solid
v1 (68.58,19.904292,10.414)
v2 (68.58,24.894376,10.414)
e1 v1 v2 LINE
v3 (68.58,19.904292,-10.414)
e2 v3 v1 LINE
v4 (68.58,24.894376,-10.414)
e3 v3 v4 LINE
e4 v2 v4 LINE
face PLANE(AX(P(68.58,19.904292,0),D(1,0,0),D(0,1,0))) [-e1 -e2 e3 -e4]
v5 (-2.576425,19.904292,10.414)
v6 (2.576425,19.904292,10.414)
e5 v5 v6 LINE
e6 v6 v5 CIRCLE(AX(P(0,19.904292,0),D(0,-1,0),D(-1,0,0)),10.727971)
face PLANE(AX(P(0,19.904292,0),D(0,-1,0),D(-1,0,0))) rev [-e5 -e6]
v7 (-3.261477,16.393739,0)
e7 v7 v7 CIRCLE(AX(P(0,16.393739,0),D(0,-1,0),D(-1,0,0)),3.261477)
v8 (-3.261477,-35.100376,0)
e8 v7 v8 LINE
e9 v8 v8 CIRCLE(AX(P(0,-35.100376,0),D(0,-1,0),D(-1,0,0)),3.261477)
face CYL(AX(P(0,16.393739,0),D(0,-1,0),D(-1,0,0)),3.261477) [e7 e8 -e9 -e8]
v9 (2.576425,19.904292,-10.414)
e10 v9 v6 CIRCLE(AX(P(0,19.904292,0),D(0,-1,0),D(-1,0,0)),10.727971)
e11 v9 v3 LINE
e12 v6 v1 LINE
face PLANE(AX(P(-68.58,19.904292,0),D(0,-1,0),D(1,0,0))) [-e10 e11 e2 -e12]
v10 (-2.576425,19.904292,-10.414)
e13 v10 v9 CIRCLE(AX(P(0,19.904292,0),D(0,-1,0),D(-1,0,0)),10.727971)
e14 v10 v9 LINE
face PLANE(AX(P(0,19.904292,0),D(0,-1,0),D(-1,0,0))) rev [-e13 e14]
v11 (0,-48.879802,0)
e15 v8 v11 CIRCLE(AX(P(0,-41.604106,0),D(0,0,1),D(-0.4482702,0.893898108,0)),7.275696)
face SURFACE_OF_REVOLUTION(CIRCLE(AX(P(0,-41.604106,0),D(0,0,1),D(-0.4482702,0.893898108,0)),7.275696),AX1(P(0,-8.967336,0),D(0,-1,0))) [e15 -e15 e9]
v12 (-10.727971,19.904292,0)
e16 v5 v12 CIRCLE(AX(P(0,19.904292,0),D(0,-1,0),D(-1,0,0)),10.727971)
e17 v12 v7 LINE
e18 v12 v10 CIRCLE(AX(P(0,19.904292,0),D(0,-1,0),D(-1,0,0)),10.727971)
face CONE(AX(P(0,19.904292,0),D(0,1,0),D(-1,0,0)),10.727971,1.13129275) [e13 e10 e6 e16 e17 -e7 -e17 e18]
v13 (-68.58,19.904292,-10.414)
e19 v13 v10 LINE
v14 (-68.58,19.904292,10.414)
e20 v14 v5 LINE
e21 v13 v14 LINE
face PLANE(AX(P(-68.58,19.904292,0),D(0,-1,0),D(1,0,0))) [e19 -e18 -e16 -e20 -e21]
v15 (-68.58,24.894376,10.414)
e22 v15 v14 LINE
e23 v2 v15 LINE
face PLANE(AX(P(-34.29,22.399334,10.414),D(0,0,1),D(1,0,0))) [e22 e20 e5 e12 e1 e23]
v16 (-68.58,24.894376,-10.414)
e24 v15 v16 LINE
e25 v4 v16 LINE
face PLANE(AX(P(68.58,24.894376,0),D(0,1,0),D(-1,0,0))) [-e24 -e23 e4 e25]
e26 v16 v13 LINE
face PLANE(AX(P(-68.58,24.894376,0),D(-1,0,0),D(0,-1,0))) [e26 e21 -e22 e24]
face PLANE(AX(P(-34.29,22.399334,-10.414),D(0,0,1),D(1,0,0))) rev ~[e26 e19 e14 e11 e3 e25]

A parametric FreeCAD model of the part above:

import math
import FreeCAD as App
import Part
import Sketcher

V = App.Vector
Q = App.Units.Quantity

doc = App.newDocument("Part")
params = doc.addObject("Spreadsheet::Sheet", "Params")
for row, (alias, value) in enumerate([
    ("revolution_angle", "360 deg"),
    ("sketch2_width", "5.4 in"),
    ("pad1_length", "0.82 in"),
], start=1):
    params.set(f"A{row}", alias)
    params.set(f"B{row}", "=" + value)
    params.setAlias(f"B{row}", alias)

body = doc.addObject("PartDesign::Body", "Body")

# Sketch on XY plane
sketch1 = doc.addObject("Sketcher::SketchObject", "Sketch")
body.addObject(sketch1)
sketch1.AttachmentSupport = (doc.XY_Plane, [""])
sketch1.MapMode = "FlatFace"
sketch1.addGeometry([
    Part.LineSegment(V(0, 20, 0), V(-11, 20, 0)),  # 0
    Part.LineSegment(V(-11, 20, 0), V(-3, 16, 0)),  # 1
    Part.LineSegment(V(-3, 16, 0), V(-3, -35, 0)),  # 2
    Part.ArcOfCircle(Part.Circle(V(0, -42, 0), V(0, 0, 1), 7), math.radians(117), math.radians(270)),  # 3
    Part.LineSegment(V(0, -49, 0), V(0, 20, 0)),  # 4
], False)
sketch1.addConstraint([
    Sketcher.Constraint("Coincident", 0, 2, 1, 1),
    Sketcher.Constraint("Coincident", 1, 2, 2, 1),
    Sketcher.Constraint("Coincident", 2, 2, 3, 1),
    Sketcher.Constraint("Coincident", 3, 2, 4, 1),
    Sketcher.Constraint("Coincident", 4, 2, 0, 1),
    Sketcher.Constraint("Horizontal", 0),
    Sketcher.Constraint("Vertical", 2),
    Sketcher.Constraint("Vertical", 4),
    Sketcher.Constraint("PointOnObject", 3, 3, -2),
    Sketcher.Constraint("PointOnObject", 3, 2, -2),
    Sketcher.Constraint("Radius", 3, Q("7.275696 mm")),
    Sketcher.Constraint("DistanceX", 0, 2, 0, 1, Q("10.727971 mm")),
    Sketcher.Constraint("DistanceY", 3, 2, -1, 1, Q("48.879802 mm")),
    Sketcher.Constraint("DistanceY", 3, 3, 0, 2, Q("61.508398 mm")),
    Sketcher.Constraint("DistanceY", 2, 2, 2, 1, Q("51.494115 mm")),
    Sketcher.Constraint("DistanceY", -1, 1, 1, 2, Q("16.393739 mm")),
])
revolution = doc.addObject("PartDesign::Revolution", "Revolution")
body.addObject(revolution)
revolution.Profile = sketch1
revolution.ReferenceAxis = (sketch1, ["V_Axis"])
revolution.setExpression("Angle", "Params.revolution_angle")

# Sketch on XY plane
sketch2 = doc.addObject("Sketcher::SketchObject", "Sketch001")
body.addObject(sketch2)
sketch2.AttachmentSupport = (doc.XY_Plane, [""])
sketch2.MapMode = "FlatFace"
sketch2.addGeometry([
    Part.LineSegment(V(-68.6, 24.9, 0), V(-68.6, 19.9, 0)),
    Part.LineSegment(V(-68.6, 19.9, 0), V(68.6, 19.9, 0)),
    Part.LineSegment(V(68.6, 19.9, 0), V(68.6, 24.9, 0)),
    Part.LineSegment(V(68.6, 24.9, 0), V(-68.6, 24.9, 0)),
], False)
sketch2.addConstraint([
    Sketcher.Constraint("Coincident", 0, 2, 1, 1),
    Sketcher.Constraint("Coincident", 1, 2, 2, 1),
    Sketcher.Constraint("Coincident", 2, 2, 3, 1),
    Sketcher.Constraint("Coincident", 3, 2, 0, 1),
    Sketcher.Constraint("Vertical", 0),
    Sketcher.Constraint("Horizontal", 1),
    Sketcher.Constraint("Vertical", 2),
    Sketcher.Constraint("Horizontal", 3),
    Sketcher.Constraint("DistanceX", 1, 1, 1, 2, Q("5.4 in")),
    Sketcher.Constraint("DistanceX", 0, 2, -1, 1, Q("2.7 in")),
    Sketcher.Constraint("DistanceY", 0, 2, 0, 1, Q("4.990084 mm")),
    Sketcher.Constraint("DistanceY", -1, 1, 0, 2, Q("19.904292 mm")),
])
sketch2.setExpression("Constraints[8]", "Params.sketch2_width")
pad1 = doc.addObject("PartDesign::Pad", "Pad")
body.addObject(pad1)
pad1.Profile = sketch2
pad1.setExpression("Length", "Params.pad1_length")
pad1.Midplane = True

doc.recompute()
